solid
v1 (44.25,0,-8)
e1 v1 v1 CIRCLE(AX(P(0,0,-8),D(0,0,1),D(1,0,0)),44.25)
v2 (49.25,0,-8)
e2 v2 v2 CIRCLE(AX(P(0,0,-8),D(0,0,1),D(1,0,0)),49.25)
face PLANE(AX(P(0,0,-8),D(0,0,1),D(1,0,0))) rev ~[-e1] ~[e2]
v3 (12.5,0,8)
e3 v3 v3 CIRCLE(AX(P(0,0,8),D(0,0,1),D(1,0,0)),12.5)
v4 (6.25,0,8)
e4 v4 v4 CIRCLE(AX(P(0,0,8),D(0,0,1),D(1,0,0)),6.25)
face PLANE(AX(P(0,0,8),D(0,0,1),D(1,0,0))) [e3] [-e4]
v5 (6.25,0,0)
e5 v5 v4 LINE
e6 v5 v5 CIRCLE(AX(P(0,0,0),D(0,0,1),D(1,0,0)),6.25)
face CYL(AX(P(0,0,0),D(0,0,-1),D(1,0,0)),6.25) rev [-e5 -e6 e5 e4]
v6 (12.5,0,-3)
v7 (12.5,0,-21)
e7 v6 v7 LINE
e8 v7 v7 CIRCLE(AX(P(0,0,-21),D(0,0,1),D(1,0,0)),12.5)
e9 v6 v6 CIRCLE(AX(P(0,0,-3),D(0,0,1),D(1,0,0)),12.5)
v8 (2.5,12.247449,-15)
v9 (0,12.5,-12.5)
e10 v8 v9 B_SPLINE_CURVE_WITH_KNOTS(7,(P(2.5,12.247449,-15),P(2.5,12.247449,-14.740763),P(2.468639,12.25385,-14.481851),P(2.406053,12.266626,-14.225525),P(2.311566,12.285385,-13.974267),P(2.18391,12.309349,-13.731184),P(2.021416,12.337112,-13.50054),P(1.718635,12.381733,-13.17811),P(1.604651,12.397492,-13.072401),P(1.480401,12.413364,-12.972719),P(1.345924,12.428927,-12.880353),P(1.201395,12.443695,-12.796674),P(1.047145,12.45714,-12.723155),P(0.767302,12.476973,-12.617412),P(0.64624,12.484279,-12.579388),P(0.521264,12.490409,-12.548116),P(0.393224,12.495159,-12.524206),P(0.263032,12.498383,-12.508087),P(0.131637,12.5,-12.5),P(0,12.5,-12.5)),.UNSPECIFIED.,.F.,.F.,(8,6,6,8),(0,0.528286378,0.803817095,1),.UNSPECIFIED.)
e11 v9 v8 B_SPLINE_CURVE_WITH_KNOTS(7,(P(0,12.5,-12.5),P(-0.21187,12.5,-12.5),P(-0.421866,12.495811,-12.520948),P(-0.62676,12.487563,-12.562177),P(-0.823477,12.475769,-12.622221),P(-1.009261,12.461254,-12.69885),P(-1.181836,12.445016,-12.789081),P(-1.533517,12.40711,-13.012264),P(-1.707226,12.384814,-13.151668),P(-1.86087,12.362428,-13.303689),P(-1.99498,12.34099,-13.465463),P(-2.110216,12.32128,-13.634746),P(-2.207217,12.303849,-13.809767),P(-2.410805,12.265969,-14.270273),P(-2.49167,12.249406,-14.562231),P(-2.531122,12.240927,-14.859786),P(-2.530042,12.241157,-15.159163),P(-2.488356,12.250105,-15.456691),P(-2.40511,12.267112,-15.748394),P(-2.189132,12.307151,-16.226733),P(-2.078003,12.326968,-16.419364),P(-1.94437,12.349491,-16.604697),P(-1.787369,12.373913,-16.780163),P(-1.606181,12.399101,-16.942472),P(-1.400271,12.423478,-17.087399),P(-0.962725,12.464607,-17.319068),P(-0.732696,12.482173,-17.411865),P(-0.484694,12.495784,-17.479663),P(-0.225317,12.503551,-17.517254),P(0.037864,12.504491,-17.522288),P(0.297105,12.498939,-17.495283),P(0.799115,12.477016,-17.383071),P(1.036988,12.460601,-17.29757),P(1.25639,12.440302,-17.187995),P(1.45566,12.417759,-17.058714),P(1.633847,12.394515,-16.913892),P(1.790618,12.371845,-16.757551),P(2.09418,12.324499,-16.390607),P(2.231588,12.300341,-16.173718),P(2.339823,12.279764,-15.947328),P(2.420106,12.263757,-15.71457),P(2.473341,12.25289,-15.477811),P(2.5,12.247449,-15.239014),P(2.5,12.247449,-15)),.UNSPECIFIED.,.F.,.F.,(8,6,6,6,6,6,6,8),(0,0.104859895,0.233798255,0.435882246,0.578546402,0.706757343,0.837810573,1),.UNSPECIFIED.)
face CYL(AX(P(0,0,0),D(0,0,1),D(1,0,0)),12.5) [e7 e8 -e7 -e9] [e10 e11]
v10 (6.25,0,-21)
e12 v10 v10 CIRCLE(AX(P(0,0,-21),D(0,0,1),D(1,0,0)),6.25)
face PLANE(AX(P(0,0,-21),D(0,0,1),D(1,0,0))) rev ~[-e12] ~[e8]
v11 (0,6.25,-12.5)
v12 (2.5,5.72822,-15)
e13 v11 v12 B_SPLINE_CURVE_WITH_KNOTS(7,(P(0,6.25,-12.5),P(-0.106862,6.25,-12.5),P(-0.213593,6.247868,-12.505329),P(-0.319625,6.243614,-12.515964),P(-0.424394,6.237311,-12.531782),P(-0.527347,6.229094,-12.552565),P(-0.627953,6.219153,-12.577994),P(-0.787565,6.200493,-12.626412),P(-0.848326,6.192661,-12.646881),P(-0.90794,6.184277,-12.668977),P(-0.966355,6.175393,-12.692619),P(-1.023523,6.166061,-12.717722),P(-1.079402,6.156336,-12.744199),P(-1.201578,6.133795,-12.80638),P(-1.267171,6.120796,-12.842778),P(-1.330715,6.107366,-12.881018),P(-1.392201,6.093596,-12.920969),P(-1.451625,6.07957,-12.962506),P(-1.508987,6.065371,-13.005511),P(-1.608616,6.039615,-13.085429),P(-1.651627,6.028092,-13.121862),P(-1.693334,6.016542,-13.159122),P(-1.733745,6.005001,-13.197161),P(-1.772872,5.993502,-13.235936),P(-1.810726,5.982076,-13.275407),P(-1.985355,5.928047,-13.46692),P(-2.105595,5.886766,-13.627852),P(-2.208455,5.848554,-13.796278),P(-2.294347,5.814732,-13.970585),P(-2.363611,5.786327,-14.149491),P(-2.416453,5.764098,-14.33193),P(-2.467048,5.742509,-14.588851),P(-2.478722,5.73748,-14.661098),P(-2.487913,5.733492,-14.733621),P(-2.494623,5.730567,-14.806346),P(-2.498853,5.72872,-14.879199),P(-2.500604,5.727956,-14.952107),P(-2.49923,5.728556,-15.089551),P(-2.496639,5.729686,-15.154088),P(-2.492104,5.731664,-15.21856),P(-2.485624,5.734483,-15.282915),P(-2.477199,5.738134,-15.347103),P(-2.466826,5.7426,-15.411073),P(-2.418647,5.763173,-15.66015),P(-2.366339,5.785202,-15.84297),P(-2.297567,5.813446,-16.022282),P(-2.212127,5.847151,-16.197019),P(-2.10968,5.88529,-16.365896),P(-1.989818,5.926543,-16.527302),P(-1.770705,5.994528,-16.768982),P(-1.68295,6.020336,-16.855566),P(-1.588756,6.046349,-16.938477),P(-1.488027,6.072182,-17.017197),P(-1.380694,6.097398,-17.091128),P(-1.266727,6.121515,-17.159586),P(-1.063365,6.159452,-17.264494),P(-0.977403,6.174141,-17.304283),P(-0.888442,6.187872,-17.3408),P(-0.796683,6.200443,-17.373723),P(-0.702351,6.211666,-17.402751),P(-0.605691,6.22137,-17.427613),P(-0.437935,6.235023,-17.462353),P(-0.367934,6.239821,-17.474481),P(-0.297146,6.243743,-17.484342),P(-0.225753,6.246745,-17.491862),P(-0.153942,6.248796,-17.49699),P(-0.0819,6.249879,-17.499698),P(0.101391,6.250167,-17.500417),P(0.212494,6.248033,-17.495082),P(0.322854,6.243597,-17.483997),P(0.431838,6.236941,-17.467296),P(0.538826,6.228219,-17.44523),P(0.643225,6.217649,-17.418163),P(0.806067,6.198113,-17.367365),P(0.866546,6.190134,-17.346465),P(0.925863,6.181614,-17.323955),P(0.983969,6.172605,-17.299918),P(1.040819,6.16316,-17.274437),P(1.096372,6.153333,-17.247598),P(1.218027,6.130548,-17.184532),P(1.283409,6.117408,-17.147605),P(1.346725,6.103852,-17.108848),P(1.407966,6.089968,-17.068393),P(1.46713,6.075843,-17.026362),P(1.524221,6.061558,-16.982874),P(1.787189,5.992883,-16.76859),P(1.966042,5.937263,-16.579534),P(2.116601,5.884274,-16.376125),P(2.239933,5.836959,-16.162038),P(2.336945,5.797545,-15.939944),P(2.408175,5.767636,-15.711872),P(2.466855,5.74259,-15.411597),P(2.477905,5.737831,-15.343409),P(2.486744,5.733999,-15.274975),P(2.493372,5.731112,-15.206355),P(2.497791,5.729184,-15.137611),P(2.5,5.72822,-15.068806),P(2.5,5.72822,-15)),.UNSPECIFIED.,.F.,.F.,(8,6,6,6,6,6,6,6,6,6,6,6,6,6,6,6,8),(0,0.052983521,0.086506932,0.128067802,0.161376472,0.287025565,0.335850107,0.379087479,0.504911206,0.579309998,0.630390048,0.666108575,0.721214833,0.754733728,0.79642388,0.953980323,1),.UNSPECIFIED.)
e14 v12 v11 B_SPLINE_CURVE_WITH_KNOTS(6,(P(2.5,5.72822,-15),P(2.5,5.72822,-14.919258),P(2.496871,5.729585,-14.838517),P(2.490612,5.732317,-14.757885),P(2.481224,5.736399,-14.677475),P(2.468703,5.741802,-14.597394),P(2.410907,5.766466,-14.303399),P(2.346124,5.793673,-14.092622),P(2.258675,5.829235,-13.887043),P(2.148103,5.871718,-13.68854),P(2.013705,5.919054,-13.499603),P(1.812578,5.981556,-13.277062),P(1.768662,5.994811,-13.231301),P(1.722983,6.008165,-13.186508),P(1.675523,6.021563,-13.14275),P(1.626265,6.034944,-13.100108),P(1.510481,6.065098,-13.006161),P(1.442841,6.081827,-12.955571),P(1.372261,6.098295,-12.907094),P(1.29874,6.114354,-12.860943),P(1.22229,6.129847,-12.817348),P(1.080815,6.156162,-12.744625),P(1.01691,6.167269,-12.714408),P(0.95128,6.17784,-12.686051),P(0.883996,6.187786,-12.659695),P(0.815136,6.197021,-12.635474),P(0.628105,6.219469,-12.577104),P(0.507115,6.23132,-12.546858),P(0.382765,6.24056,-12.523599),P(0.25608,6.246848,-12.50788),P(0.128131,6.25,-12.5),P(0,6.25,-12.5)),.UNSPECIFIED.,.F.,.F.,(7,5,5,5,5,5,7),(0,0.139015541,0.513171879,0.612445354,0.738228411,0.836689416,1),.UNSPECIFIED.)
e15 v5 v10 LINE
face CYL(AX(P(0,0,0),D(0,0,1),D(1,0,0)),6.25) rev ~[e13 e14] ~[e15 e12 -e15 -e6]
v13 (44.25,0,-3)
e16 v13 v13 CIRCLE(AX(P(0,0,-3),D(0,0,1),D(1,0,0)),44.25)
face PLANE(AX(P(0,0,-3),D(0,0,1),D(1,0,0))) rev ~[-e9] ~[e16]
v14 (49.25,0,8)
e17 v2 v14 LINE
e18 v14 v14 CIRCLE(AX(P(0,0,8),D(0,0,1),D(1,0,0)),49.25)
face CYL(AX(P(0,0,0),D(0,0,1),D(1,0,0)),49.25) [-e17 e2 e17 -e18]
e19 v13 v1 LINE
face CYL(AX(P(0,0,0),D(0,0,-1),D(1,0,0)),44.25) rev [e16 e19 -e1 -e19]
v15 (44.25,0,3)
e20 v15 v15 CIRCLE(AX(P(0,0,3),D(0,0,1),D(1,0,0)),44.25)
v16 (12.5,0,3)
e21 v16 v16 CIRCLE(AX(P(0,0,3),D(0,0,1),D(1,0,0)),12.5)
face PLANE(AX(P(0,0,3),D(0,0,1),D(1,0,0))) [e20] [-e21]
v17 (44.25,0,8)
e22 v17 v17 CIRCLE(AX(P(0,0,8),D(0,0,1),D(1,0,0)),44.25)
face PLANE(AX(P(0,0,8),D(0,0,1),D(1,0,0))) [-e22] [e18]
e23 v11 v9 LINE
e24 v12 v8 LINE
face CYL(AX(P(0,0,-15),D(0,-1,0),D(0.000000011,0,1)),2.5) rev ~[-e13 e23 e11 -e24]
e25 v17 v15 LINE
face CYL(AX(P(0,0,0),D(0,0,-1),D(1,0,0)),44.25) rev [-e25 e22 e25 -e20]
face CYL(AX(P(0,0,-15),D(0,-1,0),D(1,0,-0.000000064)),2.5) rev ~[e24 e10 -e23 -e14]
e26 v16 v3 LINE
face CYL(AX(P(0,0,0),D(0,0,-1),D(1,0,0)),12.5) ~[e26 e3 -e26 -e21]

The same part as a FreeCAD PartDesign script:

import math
import FreeCAD as App
import Part
import Sketcher
from FreeCAD import Vector
Q = App.Units.Quantity

doc = App.newDocument("Part")
body = doc.addObject("PartDesign::Body", "Body")

# Sketch on XY plane
sketch1 = body.newObject("Sketcher::SketchObject", "Sketch")
sketch1.AttachmentSupport = (doc.getObject("XY_Plane"), [""])
sketch1.MapMode = "FlatFace"
sketch1.addGeometry([
    Part.Circle(Vector(0, 0, 0), Vector(0, 0, 1), 49),
    Part.Circle(Vector(0, 0, 0), Vector(0, 0, 1), 44),
], False)
sketch1.addConstraint([
    Sketcher.Constraint("Coincident", 0, 3, -1, 1),
    Sketcher.Constraint("Coincident", 1, 3, -1, 1),
    Sketcher.Constraint("Diameter", 0, Q("98.5 mm")),
    Sketcher.Constraint("Diameter", 1, Q("88.5 mm")),
])
pad1 = body.newObject("PartDesign::Pad", "Pad")
pad1.Profile = sketch1
pad1.Length = 16
pad1.Midplane = True

# Sketch on XY plane
sketch2 = body.newObject("Sketcher::SketchObject", "Sketch001")
sketch2.AttachmentSupport = (doc.getObject("XY_Plane"), [""])
sketch2.MapMode = "FlatFace"
sketch2.addGeometry([
    Part.Circle(Vector(0, 0, 0), Vector(0, 0, 1), 44),
    Part.Circle(Vector(0, 0, 0), Vector(0, 0, 1), 12),
], False)
sketch2.addConstraint([
    Sketcher.Constraint("Coincident", 0, 3, -1, 1),
    Sketcher.Constraint("Coincident", 1, 3, -1, 1),
    Sketcher.Constraint("Diameter", 1, Q("25 mm")),
    Sketcher.Constraint("Diameter", 0, Q("88.5 mm")),
])
pad2 = body.newObject("PartDesign::Pad", "Pad001")
pad2.Profile = sketch2
pad2.Length = 6
pad2.Midplane = True

# Sketch on XY plane
sketch3 = body.newObject("Sketcher::SketchObject", "Sketch002")
sketch3.AttachmentSupport = (doc.getObject("XY_Plane"), [""])
sketch3.MapMode = "FlatFace"
sketch3.addGeometry([
    Part.Circle(Vector(0, 0, 0), Vector(0, 0, 1), 12),
    Part.Circle(Vector(0, 0, 0), Vector(0, 0, 1), 6),
], False)
sketch3.addConstraint([
    Sketcher.Constraint("Coincident", 0, 3, -1, 1),
    Sketcher.Constraint("Coincident", 1, 3, -1, 1),
    Sketcher.Constraint("Diameter", 0, Q("25 mm")),
    Sketcher.Constraint("Diameter", 1, Q("12.5 mm")),
])
pad3 = body.newObject("PartDesign::Pad", "Pad002")
pad3.Profile = sketch3
pad3.Type = "TwoLengths"
pad3.Length = 8
pad3.Length2 = 21

# Sketch on XZ plane
sketch4 = body.newObject("Sketcher::SketchObject", "Sketch003")
sketch4.AttachmentSupport = (doc.getObject("XZ_Plane"), [""])
sketch4.MapMode = "FlatFace"
sketch4.addGeometry([
    Part.ArcOfCircle(Part.Circle(Vector(0, -15, 0), Vector(0, 0, 1), 2.5), math.radians(90), math.radians(360)),
    Part.ArcOfCircle(Part.Circle(Vector(0, -15, 0), Vector(0, 0, 1), 2.5), math.radians(0), math.radians(90)),
], False)
sketch4.addConstraint([
    Sketcher.Constraint("Tangent", 0, 1, 1, 2),
    Sketcher.Constraint("Coincident", 1, 1, 0, 2),
    Sketcher.Constraint("PointOnObject", 0, 3, -2),
    Sketcher.Constraint("PointOnObject", 0, 1, -2),
    Sketcher.Constraint("Horizontal", 0, 3, 1, 1),
    Sketcher.Constraint("Radius", 0, Q("2.5 mm")),
    Sketcher.Constraint("DistanceY", 0, 3, -1, 1, Q("15 mm")),
])
pocket1 = body.newObject("PartDesign::Pocket", "Pocket")
pocket1.Profile = sketch4
pocket1.Length = 25

doc.recompute()
